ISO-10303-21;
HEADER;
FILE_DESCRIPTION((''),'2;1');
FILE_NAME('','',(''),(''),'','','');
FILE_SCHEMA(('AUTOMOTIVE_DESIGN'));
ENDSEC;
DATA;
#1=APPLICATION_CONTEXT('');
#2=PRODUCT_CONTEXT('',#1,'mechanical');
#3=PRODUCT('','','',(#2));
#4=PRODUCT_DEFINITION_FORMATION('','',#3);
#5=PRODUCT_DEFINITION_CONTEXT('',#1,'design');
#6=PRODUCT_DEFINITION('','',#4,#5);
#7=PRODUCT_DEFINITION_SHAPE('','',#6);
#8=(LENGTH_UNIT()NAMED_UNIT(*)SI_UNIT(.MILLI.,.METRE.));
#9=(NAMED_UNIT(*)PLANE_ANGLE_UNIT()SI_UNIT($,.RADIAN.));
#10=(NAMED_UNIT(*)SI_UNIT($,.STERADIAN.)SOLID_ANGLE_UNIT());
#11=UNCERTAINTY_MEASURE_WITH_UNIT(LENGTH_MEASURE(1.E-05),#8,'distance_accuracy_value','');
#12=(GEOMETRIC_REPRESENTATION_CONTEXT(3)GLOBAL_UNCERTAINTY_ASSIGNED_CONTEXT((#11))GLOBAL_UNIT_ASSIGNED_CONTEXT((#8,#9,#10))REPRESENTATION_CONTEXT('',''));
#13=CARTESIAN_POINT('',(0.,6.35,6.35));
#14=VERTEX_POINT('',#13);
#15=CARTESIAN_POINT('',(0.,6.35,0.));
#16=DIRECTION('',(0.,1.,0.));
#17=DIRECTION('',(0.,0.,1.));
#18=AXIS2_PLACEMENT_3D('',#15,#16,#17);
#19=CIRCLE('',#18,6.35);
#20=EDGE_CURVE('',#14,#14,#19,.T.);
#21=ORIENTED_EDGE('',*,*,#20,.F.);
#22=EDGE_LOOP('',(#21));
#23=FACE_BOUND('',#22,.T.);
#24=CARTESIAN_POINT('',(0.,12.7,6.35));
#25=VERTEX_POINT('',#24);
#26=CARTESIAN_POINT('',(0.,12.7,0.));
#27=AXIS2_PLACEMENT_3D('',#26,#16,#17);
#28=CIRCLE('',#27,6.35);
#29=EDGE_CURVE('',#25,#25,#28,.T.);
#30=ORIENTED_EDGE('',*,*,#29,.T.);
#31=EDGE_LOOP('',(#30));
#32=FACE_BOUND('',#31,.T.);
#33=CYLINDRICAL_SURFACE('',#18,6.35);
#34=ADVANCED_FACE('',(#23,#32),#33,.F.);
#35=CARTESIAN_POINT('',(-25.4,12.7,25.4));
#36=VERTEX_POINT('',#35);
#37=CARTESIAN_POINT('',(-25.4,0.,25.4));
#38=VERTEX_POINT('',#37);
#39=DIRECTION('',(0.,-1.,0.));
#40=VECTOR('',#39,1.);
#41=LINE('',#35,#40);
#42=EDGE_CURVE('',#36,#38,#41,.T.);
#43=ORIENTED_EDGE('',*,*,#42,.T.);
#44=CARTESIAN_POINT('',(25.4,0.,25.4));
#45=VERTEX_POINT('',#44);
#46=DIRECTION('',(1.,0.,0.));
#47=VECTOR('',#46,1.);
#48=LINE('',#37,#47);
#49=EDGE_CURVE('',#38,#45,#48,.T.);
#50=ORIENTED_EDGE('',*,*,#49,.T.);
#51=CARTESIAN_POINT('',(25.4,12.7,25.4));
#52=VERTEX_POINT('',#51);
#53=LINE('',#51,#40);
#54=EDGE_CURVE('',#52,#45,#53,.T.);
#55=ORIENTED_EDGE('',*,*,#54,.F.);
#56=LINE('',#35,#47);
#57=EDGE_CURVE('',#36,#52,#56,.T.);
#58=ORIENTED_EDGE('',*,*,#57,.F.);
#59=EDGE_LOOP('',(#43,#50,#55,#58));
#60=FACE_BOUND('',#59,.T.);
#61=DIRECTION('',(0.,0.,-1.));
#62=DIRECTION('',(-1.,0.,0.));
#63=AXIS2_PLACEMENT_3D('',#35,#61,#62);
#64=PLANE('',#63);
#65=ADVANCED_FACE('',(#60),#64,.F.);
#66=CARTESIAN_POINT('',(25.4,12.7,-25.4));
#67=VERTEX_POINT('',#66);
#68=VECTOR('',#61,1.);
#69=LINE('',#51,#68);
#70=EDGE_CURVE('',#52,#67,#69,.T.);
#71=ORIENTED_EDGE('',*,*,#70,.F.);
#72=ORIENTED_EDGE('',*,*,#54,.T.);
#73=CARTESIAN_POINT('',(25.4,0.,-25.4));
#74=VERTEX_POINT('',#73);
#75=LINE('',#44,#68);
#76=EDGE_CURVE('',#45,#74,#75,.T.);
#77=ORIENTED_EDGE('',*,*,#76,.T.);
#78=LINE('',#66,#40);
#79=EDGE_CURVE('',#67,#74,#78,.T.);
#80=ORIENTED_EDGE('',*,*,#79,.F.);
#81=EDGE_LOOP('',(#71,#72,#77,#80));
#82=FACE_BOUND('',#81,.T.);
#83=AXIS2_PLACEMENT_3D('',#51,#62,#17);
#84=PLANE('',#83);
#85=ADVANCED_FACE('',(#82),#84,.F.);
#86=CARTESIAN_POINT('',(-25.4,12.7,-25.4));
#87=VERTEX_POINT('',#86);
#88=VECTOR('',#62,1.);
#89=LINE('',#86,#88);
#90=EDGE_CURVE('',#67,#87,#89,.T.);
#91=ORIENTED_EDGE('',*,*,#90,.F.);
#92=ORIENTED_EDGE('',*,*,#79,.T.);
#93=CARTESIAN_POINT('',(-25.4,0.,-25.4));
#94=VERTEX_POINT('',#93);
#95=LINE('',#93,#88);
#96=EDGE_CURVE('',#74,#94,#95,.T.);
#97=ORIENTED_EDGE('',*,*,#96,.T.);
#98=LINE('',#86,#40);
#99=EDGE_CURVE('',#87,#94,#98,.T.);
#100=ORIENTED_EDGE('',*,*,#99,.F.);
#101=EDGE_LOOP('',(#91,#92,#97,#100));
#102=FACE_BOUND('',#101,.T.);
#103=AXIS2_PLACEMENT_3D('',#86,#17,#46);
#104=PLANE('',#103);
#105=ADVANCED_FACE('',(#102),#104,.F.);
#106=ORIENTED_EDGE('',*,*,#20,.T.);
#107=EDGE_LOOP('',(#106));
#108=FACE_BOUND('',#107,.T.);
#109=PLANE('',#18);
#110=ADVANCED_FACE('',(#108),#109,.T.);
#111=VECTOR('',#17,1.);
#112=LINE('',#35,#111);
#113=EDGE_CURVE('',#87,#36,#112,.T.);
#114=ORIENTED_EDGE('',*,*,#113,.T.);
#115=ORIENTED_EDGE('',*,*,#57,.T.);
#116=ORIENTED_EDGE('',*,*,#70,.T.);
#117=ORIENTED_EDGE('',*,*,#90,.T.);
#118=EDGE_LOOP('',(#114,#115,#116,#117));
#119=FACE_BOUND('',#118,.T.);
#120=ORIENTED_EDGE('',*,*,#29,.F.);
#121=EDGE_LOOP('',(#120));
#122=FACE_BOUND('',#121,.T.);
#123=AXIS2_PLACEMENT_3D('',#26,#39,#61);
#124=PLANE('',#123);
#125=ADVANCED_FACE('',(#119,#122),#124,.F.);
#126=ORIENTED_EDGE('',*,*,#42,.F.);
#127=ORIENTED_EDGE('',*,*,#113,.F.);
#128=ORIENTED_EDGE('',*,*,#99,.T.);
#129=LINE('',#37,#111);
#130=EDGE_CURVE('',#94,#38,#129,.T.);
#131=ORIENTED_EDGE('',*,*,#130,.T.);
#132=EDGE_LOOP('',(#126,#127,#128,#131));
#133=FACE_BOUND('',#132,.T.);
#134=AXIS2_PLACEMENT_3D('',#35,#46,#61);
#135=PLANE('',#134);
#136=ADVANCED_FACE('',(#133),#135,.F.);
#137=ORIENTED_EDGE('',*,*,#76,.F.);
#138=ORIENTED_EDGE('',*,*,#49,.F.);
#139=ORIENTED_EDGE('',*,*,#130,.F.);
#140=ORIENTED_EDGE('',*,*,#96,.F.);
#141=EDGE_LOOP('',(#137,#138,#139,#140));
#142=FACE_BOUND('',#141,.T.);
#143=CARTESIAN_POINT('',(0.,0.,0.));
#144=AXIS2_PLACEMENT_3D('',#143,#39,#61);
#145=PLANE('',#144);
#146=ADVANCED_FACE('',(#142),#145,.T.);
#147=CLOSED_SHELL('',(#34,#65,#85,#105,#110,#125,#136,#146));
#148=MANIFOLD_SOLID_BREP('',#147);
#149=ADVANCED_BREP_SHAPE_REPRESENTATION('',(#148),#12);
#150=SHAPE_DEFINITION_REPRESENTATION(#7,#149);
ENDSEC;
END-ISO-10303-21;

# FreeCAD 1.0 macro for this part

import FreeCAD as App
import Part
import Sketcher
from FreeCAD import Vector
Q = App.Units.Quantity


def add_polygon(sketch, points):
    """Adds a closed chain of lines whose ends are joined by coincident constraints."""
    first, n = sketch.GeometryCount, len(points)
    for a, b in zip(points, points[1:] + points[:1]):
        sketch.addGeometry(Part.LineSegment(App.Vector(*a, 0), App.Vector(*b, 0)), False)
    for i in range(n):
        sketch.addConstraint(Sketcher.Constraint("Coincident", first + i, 2, first + (i + 1) % n, 1))

doc = App.newDocument("Part")
params = doc.addObject("Spreadsheet::Sheet", "Params")
for row, (alias, value) in enumerate([
    ("sketch1_width", "2 in"),
    ("pad1_length", "0.5 in"),
    ("sketch2_diameter", "0.5 in"),
    ("pocket1_length", "0.25 in"),
], start=1):
    params.set(f"A{row}", alias)
    params.set(f"B{row}", "=" + value)
    params.setAlias(f"B{row}", alias)

body = doc.addObject("PartDesign::Body", "Body")

# Sketch on XZ plane
sketch1 = body.newObject("Sketcher::SketchObject", "Sketch")
sketch1.AttachmentSupport = (doc.getObject("XZ_Plane"), [""])
sketch1.MapMode = "FlatFace"
add_polygon(sketch1, [(-25, -25), (-25, 25), (25, 25), (25, -25)])  # lines 0-3
sketch1.addConstraint(Sketcher.Constraint("Vertical", 0))
sketch1.addConstraint(Sketcher.Constraint("Horizontal", 1))
sketch1.addConstraint(Sketcher.Constraint("Vertical", 2))
sketch1.addConstraint(Sketcher.Constraint("Horizontal", 3))
sketch1.addConstraint(Sketcher.Constraint("Symmetric", 0, 2, 2, 2, -1, 1))
sketch1.addConstraint(Sketcher.Constraint("Equal", 3, 0))
sketch1.addConstraint(Sketcher.Constraint("DistanceX", 1, 1, 1, 2, Q("2 in")))
sketch1.setExpression("Constraints[10]", "Params.sketch1_width")
pad1 = body.newObject("PartDesign::Pad", "Pad")
pad1.Profile = sketch1
pad1.setExpression("Length", "Params.pad1_length")
pad1.Reversed = True

# Sketch on XZ plane
sketch2 = body.newObject("Sketcher::SketchObject", "Sketch001")
sketch2.AttachmentSupport = (doc.getObject("XZ_Plane"), [""])
sketch2.MapMode = "FlatFace"
sketch2.AttachmentOffset = App.Placement(Vector(0, 0, -0.5 * 25.4), App.Rotation())
sketch2.addGeometry(Part.Circle(Vector(0, 0, 0), Vector(0, 0, 1), 6), False)
sketch2.addConstraint(Sketcher.Constraint("Coincident", 0, 3, -1, 1))
sketch2.addConstraint(Sketcher.Constraint("Diameter", 0, Q("0.5 in")))
sketch2.setExpression("Constraints[1]", "Params.sketch2_diameter")
pocket1 = body.newObject("PartDesign::Pocket", "Pocket")
pocket1.Profile = sketch2
pocket1.setExpression("Length", "Params.pocket1_length")
pocket1.Reversed = True

doc.recompute()
